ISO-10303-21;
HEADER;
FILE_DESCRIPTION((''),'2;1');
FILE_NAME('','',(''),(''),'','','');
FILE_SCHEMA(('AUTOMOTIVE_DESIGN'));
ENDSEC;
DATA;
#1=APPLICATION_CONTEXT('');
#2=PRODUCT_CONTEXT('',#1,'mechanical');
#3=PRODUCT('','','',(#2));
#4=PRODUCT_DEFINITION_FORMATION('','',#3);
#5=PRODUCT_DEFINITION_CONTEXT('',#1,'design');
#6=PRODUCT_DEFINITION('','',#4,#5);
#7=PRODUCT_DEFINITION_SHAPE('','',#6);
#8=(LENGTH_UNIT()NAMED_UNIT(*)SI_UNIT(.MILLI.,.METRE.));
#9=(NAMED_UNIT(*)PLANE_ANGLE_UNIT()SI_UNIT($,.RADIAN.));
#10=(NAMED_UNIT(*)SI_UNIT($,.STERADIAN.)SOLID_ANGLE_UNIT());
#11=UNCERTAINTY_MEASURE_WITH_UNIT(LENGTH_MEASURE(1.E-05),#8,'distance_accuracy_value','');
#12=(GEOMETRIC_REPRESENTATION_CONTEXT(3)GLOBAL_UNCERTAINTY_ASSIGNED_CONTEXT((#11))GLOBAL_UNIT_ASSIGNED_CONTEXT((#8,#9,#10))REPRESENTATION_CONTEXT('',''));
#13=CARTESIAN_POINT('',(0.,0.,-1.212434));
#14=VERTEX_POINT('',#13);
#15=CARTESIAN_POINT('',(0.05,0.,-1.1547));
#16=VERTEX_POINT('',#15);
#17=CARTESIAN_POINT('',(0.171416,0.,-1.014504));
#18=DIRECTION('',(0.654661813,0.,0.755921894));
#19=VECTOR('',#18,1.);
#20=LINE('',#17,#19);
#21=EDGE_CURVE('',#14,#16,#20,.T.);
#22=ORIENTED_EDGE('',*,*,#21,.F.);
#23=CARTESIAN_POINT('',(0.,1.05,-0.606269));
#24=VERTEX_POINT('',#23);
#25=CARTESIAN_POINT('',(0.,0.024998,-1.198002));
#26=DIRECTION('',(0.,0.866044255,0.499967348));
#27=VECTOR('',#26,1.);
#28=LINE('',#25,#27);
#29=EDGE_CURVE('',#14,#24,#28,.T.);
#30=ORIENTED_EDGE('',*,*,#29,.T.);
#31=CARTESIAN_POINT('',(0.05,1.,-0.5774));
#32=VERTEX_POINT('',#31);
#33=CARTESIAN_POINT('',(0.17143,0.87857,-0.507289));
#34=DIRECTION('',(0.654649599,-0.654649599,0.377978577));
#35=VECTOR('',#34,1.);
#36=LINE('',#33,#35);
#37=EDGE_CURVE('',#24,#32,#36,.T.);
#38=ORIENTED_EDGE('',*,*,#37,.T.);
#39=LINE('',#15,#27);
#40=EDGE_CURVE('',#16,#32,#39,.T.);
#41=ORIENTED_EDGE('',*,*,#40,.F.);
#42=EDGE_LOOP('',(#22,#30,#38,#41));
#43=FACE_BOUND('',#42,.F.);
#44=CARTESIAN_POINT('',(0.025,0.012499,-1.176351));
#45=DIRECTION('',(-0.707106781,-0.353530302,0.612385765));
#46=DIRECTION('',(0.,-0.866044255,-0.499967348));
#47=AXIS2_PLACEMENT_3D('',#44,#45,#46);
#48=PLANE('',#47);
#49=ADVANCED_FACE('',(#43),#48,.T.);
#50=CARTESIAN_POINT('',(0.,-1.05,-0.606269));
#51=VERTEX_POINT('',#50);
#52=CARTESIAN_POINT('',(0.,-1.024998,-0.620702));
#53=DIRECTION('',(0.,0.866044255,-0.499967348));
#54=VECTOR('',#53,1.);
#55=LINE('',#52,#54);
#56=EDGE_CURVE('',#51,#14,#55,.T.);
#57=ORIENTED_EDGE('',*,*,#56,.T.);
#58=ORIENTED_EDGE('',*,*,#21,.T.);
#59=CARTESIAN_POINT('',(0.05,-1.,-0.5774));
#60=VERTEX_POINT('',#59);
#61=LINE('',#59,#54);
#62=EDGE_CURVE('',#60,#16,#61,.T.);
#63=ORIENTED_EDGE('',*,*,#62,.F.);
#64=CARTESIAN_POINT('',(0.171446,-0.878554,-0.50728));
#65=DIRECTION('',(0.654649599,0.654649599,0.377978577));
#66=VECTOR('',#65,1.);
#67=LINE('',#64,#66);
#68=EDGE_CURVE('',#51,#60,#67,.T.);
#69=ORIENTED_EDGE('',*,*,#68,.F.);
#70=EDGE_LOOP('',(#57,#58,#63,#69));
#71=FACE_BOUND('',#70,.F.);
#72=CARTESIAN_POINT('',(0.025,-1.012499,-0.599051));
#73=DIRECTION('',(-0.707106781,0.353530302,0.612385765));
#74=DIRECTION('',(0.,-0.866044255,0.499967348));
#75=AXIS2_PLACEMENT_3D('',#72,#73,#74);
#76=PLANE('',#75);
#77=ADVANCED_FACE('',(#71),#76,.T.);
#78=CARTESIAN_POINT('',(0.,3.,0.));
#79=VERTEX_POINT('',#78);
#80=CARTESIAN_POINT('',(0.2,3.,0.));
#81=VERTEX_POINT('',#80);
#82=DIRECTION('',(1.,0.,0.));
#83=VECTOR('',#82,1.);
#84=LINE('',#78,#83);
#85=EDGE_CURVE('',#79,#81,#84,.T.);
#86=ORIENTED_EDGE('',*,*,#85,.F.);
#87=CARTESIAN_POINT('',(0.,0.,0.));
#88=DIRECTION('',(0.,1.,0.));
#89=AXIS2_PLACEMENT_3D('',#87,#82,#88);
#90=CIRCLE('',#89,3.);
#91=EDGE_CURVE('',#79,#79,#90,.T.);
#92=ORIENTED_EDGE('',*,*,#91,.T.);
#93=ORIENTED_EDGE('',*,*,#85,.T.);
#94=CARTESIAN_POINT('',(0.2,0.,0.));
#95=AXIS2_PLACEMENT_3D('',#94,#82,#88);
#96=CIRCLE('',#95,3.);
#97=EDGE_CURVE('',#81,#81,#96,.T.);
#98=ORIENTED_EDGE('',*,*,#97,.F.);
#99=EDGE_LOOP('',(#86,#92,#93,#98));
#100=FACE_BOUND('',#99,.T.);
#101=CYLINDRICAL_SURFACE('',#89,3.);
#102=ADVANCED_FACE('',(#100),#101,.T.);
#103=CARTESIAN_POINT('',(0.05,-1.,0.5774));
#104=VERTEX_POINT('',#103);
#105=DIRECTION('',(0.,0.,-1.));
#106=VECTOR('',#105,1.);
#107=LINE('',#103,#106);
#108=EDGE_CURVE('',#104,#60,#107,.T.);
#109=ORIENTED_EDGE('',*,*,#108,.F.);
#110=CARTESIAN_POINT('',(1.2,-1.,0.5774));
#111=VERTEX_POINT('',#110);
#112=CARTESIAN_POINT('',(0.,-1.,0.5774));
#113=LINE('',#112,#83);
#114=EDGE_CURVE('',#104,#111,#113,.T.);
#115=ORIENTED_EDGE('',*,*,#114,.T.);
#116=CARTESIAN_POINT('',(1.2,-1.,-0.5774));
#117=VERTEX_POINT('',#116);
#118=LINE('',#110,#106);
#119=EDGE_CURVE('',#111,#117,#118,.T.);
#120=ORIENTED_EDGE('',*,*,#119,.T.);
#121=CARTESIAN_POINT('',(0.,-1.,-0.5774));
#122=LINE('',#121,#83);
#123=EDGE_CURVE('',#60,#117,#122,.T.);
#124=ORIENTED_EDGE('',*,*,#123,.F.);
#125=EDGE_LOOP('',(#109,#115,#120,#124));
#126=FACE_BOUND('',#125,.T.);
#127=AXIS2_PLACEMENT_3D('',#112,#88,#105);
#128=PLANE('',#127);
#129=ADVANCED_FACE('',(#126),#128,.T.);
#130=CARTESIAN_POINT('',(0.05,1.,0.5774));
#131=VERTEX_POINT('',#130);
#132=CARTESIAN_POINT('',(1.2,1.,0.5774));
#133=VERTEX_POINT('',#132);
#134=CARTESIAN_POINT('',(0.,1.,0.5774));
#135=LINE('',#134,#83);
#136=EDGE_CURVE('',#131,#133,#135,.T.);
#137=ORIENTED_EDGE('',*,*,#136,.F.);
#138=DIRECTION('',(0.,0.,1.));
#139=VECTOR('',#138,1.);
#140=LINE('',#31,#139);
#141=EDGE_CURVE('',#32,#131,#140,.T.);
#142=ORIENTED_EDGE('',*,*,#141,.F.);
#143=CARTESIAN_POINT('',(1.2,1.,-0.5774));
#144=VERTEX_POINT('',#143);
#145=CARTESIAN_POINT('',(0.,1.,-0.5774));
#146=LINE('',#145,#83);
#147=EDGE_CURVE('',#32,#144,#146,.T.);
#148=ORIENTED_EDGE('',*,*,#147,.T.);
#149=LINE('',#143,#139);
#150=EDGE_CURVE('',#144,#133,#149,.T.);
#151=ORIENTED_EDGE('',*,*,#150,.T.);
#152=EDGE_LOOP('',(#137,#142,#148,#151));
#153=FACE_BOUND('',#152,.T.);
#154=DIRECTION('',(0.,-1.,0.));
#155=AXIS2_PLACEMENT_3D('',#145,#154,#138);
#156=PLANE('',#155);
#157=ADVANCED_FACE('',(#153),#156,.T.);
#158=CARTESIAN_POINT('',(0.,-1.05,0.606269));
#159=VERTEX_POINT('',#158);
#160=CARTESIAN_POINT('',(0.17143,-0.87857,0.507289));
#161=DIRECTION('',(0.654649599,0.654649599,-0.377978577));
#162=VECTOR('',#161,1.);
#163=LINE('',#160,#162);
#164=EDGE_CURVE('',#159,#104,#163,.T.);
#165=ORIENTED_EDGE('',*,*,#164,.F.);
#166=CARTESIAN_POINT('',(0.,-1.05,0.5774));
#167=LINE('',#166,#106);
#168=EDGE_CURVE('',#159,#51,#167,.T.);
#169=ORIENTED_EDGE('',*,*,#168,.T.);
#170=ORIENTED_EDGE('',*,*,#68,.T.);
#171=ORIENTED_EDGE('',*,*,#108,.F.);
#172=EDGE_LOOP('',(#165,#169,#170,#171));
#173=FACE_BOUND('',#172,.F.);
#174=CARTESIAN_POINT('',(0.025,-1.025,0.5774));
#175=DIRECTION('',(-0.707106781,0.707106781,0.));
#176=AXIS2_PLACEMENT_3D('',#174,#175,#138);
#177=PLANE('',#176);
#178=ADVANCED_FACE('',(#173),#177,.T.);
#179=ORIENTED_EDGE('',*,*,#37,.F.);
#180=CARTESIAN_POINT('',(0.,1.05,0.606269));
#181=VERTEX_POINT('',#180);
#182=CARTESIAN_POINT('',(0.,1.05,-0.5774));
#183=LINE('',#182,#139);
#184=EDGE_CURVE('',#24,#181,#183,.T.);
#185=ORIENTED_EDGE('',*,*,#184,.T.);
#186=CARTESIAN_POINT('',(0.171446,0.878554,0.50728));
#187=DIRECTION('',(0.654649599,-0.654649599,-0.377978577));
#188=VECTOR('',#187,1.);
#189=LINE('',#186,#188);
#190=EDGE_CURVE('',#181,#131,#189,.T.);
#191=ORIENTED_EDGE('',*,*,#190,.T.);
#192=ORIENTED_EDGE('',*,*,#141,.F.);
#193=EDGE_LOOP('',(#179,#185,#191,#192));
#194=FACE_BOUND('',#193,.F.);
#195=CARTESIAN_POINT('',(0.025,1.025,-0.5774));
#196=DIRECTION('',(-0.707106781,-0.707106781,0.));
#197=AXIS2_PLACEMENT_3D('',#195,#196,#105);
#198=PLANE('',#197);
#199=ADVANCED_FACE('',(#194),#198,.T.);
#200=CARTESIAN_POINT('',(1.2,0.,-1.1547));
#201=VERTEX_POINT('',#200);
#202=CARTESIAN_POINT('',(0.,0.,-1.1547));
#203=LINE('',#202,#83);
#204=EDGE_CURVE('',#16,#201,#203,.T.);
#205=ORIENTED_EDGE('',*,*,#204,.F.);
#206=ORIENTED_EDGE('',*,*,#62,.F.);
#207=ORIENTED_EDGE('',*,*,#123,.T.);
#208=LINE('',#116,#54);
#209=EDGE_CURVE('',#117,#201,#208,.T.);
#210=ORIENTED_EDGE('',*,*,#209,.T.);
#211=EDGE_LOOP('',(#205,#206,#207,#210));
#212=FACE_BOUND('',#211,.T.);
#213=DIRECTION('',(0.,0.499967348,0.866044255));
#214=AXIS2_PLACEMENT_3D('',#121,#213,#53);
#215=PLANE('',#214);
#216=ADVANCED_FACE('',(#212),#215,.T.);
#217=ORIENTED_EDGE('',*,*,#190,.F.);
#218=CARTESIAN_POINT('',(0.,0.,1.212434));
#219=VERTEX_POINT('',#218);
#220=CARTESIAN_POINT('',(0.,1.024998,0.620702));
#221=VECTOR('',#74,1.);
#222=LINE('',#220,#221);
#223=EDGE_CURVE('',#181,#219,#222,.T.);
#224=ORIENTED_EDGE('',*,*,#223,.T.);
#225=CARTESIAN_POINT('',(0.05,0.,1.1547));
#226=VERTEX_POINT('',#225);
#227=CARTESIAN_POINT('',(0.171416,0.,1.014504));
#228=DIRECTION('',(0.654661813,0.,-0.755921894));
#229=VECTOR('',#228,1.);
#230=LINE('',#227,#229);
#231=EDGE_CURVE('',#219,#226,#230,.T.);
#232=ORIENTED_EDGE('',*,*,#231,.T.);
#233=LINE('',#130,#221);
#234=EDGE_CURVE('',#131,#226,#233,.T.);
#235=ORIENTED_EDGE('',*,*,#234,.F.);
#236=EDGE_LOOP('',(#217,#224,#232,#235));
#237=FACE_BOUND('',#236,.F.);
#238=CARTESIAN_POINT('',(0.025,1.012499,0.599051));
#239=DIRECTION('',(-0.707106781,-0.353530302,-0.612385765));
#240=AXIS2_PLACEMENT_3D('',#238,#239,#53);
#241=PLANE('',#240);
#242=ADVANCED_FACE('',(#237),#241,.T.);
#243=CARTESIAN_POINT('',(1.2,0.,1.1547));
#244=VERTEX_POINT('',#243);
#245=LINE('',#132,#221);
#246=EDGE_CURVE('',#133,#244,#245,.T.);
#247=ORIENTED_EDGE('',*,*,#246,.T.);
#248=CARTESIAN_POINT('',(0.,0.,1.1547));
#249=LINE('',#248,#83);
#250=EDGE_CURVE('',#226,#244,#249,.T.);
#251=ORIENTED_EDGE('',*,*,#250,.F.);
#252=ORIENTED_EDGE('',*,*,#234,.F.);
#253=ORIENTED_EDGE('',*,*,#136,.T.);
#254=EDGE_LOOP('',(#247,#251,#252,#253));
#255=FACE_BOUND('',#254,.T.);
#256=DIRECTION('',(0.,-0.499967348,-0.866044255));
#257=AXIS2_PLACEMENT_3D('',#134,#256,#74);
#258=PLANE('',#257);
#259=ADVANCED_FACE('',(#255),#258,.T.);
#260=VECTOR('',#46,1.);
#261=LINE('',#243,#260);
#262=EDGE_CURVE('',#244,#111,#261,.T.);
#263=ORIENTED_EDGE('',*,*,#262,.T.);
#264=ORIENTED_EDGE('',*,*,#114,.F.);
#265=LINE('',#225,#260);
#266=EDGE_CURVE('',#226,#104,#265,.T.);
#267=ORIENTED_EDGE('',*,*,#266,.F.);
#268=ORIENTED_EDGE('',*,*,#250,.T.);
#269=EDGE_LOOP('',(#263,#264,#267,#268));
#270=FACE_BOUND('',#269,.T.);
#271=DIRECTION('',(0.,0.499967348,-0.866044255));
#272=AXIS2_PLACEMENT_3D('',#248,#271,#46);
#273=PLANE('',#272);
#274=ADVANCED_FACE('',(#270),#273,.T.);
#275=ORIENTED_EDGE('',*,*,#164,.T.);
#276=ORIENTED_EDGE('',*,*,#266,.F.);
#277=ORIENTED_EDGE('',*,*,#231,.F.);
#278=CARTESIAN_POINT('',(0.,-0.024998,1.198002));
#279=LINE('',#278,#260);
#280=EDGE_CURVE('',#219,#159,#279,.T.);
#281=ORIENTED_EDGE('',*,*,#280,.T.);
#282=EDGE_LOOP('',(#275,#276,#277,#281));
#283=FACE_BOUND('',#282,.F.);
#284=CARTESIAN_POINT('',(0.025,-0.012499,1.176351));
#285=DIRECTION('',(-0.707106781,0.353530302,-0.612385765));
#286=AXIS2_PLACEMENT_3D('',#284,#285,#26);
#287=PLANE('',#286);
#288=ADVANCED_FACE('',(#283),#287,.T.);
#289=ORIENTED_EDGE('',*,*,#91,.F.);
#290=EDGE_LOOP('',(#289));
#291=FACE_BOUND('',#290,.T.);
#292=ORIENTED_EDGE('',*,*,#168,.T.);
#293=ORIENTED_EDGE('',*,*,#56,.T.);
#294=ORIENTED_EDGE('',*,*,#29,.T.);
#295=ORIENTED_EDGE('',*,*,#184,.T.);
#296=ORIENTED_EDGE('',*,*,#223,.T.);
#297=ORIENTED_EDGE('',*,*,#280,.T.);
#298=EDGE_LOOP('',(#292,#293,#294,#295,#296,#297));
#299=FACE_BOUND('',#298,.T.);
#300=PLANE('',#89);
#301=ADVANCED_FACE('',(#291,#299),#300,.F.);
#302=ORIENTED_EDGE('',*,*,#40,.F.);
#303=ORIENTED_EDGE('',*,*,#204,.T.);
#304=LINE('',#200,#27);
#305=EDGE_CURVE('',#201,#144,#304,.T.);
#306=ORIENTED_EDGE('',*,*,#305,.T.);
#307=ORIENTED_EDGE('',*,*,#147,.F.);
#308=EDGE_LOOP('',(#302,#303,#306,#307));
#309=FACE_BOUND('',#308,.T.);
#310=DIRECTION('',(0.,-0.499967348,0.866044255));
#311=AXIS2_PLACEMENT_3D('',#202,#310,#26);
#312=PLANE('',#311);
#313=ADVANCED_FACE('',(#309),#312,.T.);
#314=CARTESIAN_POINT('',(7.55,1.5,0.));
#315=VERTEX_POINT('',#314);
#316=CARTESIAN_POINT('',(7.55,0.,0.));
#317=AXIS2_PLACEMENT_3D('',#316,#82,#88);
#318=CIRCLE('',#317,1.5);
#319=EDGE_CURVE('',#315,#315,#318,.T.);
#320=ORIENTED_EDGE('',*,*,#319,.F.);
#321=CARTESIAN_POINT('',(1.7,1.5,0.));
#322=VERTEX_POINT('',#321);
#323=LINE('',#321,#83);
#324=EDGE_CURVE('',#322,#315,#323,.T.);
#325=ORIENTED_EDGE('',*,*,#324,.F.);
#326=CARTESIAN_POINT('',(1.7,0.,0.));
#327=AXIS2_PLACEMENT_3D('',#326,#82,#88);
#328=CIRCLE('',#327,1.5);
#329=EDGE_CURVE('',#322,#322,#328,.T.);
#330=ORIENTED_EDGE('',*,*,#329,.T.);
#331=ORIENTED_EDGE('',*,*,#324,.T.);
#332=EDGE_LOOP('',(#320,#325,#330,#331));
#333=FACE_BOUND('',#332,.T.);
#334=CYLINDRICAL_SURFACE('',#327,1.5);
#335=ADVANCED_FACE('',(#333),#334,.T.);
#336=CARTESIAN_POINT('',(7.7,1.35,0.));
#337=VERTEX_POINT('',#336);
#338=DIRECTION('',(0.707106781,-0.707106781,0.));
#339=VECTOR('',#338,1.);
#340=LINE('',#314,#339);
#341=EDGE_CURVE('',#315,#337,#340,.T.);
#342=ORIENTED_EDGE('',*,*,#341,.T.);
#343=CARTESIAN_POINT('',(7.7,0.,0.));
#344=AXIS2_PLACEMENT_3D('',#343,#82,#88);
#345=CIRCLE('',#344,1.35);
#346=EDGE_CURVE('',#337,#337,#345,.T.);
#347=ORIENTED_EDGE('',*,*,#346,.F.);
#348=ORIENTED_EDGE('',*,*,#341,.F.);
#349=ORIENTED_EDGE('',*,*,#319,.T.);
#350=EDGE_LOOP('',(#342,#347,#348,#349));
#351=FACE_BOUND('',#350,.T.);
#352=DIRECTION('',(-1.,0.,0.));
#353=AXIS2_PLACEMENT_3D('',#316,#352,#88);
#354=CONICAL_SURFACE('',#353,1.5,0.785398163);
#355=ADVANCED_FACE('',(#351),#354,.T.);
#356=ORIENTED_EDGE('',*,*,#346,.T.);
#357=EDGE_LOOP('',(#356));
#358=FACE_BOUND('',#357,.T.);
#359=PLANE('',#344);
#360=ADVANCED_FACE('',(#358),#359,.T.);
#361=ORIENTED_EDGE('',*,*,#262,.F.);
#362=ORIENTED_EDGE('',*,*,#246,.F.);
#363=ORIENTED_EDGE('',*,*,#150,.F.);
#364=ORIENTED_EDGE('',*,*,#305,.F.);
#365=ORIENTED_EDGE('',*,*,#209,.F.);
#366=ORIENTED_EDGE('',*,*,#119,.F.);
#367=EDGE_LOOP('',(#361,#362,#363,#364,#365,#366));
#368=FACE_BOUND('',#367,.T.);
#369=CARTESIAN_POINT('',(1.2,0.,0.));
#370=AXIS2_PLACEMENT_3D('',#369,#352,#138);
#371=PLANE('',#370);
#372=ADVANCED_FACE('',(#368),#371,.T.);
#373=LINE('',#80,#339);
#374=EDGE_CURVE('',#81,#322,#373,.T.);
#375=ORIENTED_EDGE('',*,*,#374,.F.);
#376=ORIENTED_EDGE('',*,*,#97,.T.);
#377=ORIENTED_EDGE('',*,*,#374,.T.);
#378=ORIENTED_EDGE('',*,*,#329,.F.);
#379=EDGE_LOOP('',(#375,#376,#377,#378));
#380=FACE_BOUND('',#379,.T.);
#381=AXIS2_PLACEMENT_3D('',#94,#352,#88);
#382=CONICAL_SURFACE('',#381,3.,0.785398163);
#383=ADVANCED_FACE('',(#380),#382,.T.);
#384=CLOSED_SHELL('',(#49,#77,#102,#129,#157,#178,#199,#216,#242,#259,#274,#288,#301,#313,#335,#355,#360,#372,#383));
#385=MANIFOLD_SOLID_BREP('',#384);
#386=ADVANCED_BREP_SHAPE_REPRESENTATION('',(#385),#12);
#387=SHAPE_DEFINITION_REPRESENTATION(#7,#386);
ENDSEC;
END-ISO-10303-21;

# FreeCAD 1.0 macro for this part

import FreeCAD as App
import Part
import Sketcher

V = App.Vector
Q = App.Units.Quantity


def edges_at(feature, points):
    """Names of the edges that pass closest to the given points."""
    edges = feature.Shape.Edges
    near = lambda p: min(range(len(edges)), key=lambda i: edges[i].distToShape(Part.Vertex(*p))[0])
    return sorted({f"Edge{near(p) + 1}" for p in points})

doc = App.newDocument("Part")
body = doc.addObject("PartDesign::Body", "Body")

# Sketch on XY plane
sketch1 = body.newObject("Sketcher::SketchObject", "Sketch")
sketch1.AttachmentSupport = (doc.getObject("XY_Plane"), [""])
sketch1.MapMode = "FlatFace"
sketch1.addGeometry([
    Part.LineSegment(V(0, 3, 0), V(0, 0, 0)),  # 0
    Part.LineSegment(V(0, 0, 0), V(7.7, 0, 0)),  # 1
    Part.LineSegment(V(7.7, 0, 0), V(7.7, 1.5, 0)),  # 2
    Part.LineSegment(V(7.7, 1.5, 0), V(1.7, 1.5, 0)),  # 3
    Part.LineSegment(V(1.7, 1.5, 0), V(0.2, 3, 0)),  # 4
    Part.LineSegment(V(0.2, 3, 0), V(0, 3, 0)),  # 5
], False)
sketch1.addConstraint([
    Sketcher.Constraint("Coincident", 0, 2, 1, 1),
    Sketcher.Constraint("Coincident", 1, 2, 2, 1),
    Sketcher.Constraint("Coincident", 2, 2, 3, 1),
    Sketcher.Constraint("Coincident", 3, 2, 4, 1),
    Sketcher.Constraint("Coincident", 4, 2, 5, 1),
    Sketcher.Constraint("Coincident", 5, 2, 0, 1),
    Sketcher.Constraint("Vertical", 0),
    Sketcher.Constraint("Horizontal", 1),
    Sketcher.Constraint("Vertical", 2),
    Sketcher.Constraint("Horizontal", 3),
    Sketcher.Constraint("Horizontal", 5),
    Sketcher.Constraint("Coincident", 0, 2, -1, 1),
    Sketcher.Constraint("DistanceX", 3, 2, 3, 1, Q("6 mm")),
    Sketcher.Constraint("DistanceY", 0, 2, 0, 1, Q("3 mm")),
    Sketcher.Constraint("DistanceY", 2, 1, 2, 2, Q("1.5 mm")),
    Sketcher.Constraint("DistanceX", -1, 1, 3, 2, Q("1.7 mm")),
    Sketcher.Constraint("DistanceX", 4, 2, 3, 2, Q("1.5 mm")),
])
revolution = body.newObject("PartDesign::Revolution", "Revolution")
revolution.Profile = sketch1
revolution.ReferenceAxis = (sketch1, ["H_Axis"])
revolution.Angle = 360

# Sketch on YZ plane
sketch2 = body.newObject("Sketcher::SketchObject", "Sketch001")
sketch2.AttachmentSupport = (doc.getObject("YZ_Plane"), [""])
sketch2.MapMode = "FlatFace"
sketch2.addGeometry([
    Part.LineSegment(V(0, 1.2, 0), V(1, 0.6, 0)),  # 0
    Part.LineSegment(V(1, 0.6, 0), V(1, -0.6, 0)),  # 1
    Part.LineSegment(V(1, -0.6, 0), V(0, -1.2, 0)),  # 2
    Part.LineSegment(V(0, -1.2, 0), V(-1, -0.6, 0)),  # 3
    Part.LineSegment(V(-1, -0.6, 0), V(-1, 0.6, 0)),  # 4
    Part.LineSegment(V(-1, 0.6, 0), V(0, 1.2, 0)),  # 5
], False)
sketch2.addConstraint([
    Sketcher.Constraint("Coincident", 0, 2, 1, 1),
    Sketcher.Constraint("Coincident", 1, 2, 2, 1),
    Sketcher.Constraint("Coincident", 2, 2, 3, 1),
    Sketcher.Constraint("Coincident", 3, 2, 4, 1),
    Sketcher.Constraint("Coincident", 4, 2, 5, 1),
    Sketcher.Constraint("Coincident", 5, 2, 0, 1),
    Sketcher.Constraint("Vertical", 1),
    Sketcher.Constraint("Vertical", 4),
    Sketcher.Constraint("Symmetric", 0, 2, 3, 2, -1, 1),
    Sketcher.Constraint("Symmetric", 2, 2, 5, 2, -1, 1),
    Sketcher.Constraint("PointOnObject", 2, 2, -2),
    Sketcher.Constraint("Parallel", 2, 5),
    Sketcher.Constraint("Horizontal", 1, 2, 3, 2),
    Sketcher.Constraint("DistanceX", 3, 2, 1, 2, Q("2 mm")),
    Sketcher.Constraint("DistanceY", 1, 2, 1, 1, Q("1.1548 mm")),
    Sketcher.Constraint("DistanceY", 2, 2, 0, 2, Q("1.732 mm")),
])
pocket1 = body.newObject("PartDesign::Pocket", "Pocket")
pocket1.Profile = sketch2
pocket1.Length = 1.2
pocket1.Reversed = True
doc.recompute()

chamfer = body.newObject("PartDesign::Chamfer", "Chamfer")
chamfer.Base = (pocket1, edges_at(pocket1, [
    (0, -0.5, -0.866),
    (0, 0.5, -0.866),
    (0, 1, 0),
    (0, 0.5, 0.866),
    (0, -1, 0),
    (0, -0.5, 0.866),
]))
chamfer.Size = 0.05
doc.recompute()

chamfer2 = body.newObject("PartDesign::Chamfer", "Chamfer001")
chamfer2.Base = (chamfer, edges_at(chamfer, [(7.7, -1.5, 0)]))
chamfer2.Size = 0.15

doc.recompute()
